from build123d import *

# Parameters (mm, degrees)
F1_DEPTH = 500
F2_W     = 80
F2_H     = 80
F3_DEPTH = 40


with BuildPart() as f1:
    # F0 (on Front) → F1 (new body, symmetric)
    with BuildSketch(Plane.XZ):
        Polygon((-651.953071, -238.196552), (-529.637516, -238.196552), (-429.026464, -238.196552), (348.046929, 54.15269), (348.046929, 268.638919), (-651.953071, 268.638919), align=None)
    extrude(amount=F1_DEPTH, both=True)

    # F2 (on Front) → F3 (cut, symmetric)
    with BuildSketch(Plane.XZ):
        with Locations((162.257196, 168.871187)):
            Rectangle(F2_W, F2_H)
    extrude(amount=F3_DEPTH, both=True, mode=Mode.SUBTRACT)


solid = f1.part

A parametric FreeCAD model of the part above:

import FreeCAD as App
import Part
import Sketcher


def add_polygon(sketch, points):
    """Adds a closed chain of lines whose ends are joined by coincident constraints."""
    first, n = sketch.GeometryCount, len(points)
    for a, b in zip(points, points[1:] + points[:1]):
        sketch.addGeometry(Part.LineSegment(App.Vector(*a, 0), App.Vector(*b, 0)), False)
    for i in range(n):
        sketch.addConstraint(Sketcher.Constraint("Coincident", first + i, 2, first + (i + 1) % n, 1))

doc = App.newDocument("Part")
body = doc.addObject("PartDesign::Body", "Body")

# Sketch on XZ plane
sketch1 = doc.addObject("Sketcher::SketchObject", "Sketch")
body.addObject(sketch1)
sketch1.AttachmentSupport = (doc.XZ_Plane, [""])
sketch1.MapMode = "FlatFace"
add_polygon(sketch1, [(-652, -238), (-429, -238), (348, 54), (348, 269), (-652, 269)])  # lines 0-4
sketch1.addConstraint(Sketcher.Constraint("Horizontal", 0))
sketch1.addConstraint(Sketcher.Constraint("Vertical", 2))
sketch1.addConstraint(Sketcher.Constraint("Horizontal", 3))
sketch1.addConstraint(Sketcher.Constraint("Vertical", 4))
sketch1.addConstraint(Sketcher.Constraint("DistanceX", 3, 2, 3, 1, 1000.0))
sketch1.addConstraint(Sketcher.Constraint("DistanceY", 2, 1, 2, 2, 214.486229))
sketch1.addConstraint(Sketcher.Constraint("DistanceY", 4, 2, 4, 1, 506.835471))
sketch1.addConstraint(Sketcher.Constraint("DistanceX", 0, 1, 0, 2, 222.926607))
sketch1.addConstraint(Sketcher.Constraint("DistanceY", 0, 2, -1, 1, 238.196552))
sketch1.addConstraint(Sketcher.Constraint("DistanceX", -1, 1, 1, 2, 348.046929))
pad1 = doc.addObject("PartDesign::Pad", "Pad")
body.addObject(pad1)
pad1.Profile = sketch1
pad1.Length = 1000
pad1.Midplane = True

# Sketch on XZ plane
sketch2 = doc.addObject("Sketcher::SketchObject", "Sketch001")
body.addObject(sketch2)
sketch2.AttachmentSupport = (doc.XZ_Plane, [""])
sketch2.MapMode = "FlatFace"
add_polygon(sketch2, [(122, 209), (122, 129), (202, 129), (202, 209)])  # lines 0-3
sketch2.addConstraint(Sketcher.Constraint("Vertical", 0))
sketch2.addConstraint(Sketcher.Constraint("Horizontal", 1))
sketch2.addConstraint(Sketcher.Constraint("Vertical", 2))
sketch2.addConstraint(Sketcher.Constraint("Horizontal", 3))
sketch2.addConstraint(Sketcher.Constraint("Equal", 3, 0))
sketch2.addConstraint(Sketcher.Constraint("DistanceX", 1, 1, 1, 2, 80.0))
sketch2.addConstraint(Sketcher.Constraint("DistanceX", -1, 1, 0, 2, 122.257196))
sketch2.addConstraint(Sketcher.Constraint("DistanceY", -1, 1, 0, 2, 128.871187))
pocket1 = doc.addObject("PartDesign::Pocket", "Pocket")
body.addObject(pocket1)
pocket1.Profile = sketch2
pocket1.Length = 80
pocket1.Midplane = True

doc.recompute()
